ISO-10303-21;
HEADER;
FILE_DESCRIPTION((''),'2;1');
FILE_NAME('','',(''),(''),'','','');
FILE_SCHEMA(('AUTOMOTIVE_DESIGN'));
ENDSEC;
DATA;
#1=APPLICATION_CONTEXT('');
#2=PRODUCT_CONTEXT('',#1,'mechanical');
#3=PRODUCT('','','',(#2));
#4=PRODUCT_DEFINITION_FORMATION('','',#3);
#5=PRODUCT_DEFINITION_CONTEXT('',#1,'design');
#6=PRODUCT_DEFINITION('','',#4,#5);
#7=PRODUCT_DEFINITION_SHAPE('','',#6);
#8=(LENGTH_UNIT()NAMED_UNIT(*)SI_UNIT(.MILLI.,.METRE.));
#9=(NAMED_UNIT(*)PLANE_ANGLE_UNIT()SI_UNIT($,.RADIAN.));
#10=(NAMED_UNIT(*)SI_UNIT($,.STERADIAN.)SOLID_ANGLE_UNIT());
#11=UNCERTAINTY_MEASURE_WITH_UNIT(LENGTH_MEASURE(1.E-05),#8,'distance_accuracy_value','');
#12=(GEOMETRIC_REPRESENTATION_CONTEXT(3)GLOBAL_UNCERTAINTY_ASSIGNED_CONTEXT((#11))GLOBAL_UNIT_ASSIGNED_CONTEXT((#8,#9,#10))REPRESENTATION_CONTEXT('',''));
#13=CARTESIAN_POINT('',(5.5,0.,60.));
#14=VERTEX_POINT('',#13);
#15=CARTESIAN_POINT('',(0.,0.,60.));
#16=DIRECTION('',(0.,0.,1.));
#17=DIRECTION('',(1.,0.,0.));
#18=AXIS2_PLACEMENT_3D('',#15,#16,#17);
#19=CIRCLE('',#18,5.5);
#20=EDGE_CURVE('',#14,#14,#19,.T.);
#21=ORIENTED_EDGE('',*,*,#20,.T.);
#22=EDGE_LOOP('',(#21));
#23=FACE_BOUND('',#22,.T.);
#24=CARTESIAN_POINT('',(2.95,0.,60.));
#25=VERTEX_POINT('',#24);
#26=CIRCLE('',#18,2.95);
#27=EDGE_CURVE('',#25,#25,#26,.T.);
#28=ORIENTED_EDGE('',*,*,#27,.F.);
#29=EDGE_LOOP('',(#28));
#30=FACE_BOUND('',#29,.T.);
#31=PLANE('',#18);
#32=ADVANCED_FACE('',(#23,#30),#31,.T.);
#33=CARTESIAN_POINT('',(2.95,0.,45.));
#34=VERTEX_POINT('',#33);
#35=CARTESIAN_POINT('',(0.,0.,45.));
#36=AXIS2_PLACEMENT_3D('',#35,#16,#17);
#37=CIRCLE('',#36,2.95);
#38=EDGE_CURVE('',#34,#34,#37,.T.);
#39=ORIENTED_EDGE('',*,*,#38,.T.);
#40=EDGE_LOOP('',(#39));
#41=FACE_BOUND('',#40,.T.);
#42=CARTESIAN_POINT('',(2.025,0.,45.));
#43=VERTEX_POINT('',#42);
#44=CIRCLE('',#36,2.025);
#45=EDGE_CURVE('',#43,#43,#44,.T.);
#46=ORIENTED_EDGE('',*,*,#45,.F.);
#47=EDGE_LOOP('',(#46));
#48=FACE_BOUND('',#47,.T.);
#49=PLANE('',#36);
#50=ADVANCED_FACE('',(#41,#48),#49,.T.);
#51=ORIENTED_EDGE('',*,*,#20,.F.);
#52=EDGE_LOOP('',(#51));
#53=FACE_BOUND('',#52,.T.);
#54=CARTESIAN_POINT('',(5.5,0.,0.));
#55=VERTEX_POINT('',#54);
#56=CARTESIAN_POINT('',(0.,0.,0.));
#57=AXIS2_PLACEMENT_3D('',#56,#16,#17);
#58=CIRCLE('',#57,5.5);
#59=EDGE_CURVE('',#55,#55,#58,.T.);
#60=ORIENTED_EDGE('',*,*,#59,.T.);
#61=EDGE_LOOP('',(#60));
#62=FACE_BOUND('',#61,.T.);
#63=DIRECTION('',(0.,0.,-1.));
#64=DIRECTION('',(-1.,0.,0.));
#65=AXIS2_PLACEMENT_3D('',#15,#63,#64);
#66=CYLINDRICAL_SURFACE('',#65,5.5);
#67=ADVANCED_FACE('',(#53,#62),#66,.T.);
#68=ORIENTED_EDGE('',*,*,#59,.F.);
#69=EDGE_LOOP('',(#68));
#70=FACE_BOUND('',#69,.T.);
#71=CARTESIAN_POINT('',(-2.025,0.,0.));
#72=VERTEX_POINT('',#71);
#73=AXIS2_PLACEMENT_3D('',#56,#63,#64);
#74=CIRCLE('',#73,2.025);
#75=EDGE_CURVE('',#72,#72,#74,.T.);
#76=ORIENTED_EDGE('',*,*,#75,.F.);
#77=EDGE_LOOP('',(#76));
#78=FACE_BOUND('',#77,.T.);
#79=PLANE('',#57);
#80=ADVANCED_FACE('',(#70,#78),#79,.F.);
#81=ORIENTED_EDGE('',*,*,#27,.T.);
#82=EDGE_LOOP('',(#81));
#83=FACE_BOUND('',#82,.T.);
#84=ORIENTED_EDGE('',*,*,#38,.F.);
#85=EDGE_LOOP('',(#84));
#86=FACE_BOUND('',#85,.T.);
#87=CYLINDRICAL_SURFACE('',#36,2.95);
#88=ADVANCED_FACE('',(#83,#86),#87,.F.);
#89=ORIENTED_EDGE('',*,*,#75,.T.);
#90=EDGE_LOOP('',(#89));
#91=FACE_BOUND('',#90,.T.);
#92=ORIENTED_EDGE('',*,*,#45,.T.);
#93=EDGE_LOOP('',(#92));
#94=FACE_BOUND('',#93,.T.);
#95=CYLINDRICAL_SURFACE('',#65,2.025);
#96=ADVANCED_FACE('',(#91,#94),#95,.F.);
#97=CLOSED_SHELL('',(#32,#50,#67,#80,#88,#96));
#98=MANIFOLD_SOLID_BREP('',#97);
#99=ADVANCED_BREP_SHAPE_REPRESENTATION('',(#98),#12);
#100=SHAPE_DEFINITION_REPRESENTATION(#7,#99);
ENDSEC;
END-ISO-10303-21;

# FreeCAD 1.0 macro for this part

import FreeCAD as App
import Part
import Sketcher
from FreeCAD import Vector
Q = App.Units.Quantity

doc = App.newDocument("Part")
body = doc.addObject("PartDesign::Body", "Body")

# Sketch on XY plane
sketch1 = doc.addObject("Sketcher::SketchObject", "Sketch")
body.addObject(sketch1)
sketch1.AttachmentSupport = (doc.XY_Plane, [""])
sketch1.MapMode = "FlatFace"
sketch1.addGeometry(Part.Circle(Vector(0, 0, 0), Vector(0, 0, 1), 6), False)
sketch1.addConstraint([
    Sketcher.Constraint("Coincident", 0, 3, -1, 1),
    Sketcher.Constraint("Diameter", 0, Q("11 mm")),
])
pad1 = doc.addObject("PartDesign::Pad", "Pad")
body.addObject(pad1)
pad1.Profile = sketch1
pad1.Length = 60

# Sketch on XY plane
sketch2 = doc.addObject("Sketcher::SketchObject", "Sketch001")
body.addObject(sketch2)
sketch2.AttachmentSupport = (doc.XY_Plane, [""])
sketch2.MapMode = "FlatFace"
sketch2.AttachmentOffset = App.Placement(Vector(0, 0, 60), App.Rotation())
sketch2.addGeometry(Part.Circle(Vector(0, 0, 0), Vector(0, 0, 1), 3), False)
sketch2.addConstraint([
    Sketcher.Constraint("Coincident", 0, 3, -1, 1),
    Sketcher.Constraint("Diameter", 0, Q("5.9 mm")),
])
pocket1 = doc.addObject("PartDesign::Pocket", "Pocket")
body.addObject(pocket1)
pocket1.Profile = sketch2
pocket1.Length = 15

# Sketch on XY plane
sketch3 = doc.addObject("Sketcher::SketchObject", "Sketch002")
body.addObject(sketch3)
sketch3.AttachmentSupport = (doc.XY_Plane, [""])
sketch3.MapMode = "FlatFace"
sketch3.addGeometry(Part.Circle(Vector(0, 0, 0), Vector(0, 0, 1), 2), False)
sketch3.addConstraint([
    Sketcher.Constraint("Coincident", 0, 3, -1, 1),
    Sketcher.Constraint("Diameter", 0, Q("4.05 mm")),
])
pocket2 = doc.addObject("PartDesign::Pocket", "Pocket001")
body.addObject(pocket2)
pocket2.Profile = sketch3
pocket2.Type = "ThroughAll"
pocket2.Reversed = True

doc.recompute()
